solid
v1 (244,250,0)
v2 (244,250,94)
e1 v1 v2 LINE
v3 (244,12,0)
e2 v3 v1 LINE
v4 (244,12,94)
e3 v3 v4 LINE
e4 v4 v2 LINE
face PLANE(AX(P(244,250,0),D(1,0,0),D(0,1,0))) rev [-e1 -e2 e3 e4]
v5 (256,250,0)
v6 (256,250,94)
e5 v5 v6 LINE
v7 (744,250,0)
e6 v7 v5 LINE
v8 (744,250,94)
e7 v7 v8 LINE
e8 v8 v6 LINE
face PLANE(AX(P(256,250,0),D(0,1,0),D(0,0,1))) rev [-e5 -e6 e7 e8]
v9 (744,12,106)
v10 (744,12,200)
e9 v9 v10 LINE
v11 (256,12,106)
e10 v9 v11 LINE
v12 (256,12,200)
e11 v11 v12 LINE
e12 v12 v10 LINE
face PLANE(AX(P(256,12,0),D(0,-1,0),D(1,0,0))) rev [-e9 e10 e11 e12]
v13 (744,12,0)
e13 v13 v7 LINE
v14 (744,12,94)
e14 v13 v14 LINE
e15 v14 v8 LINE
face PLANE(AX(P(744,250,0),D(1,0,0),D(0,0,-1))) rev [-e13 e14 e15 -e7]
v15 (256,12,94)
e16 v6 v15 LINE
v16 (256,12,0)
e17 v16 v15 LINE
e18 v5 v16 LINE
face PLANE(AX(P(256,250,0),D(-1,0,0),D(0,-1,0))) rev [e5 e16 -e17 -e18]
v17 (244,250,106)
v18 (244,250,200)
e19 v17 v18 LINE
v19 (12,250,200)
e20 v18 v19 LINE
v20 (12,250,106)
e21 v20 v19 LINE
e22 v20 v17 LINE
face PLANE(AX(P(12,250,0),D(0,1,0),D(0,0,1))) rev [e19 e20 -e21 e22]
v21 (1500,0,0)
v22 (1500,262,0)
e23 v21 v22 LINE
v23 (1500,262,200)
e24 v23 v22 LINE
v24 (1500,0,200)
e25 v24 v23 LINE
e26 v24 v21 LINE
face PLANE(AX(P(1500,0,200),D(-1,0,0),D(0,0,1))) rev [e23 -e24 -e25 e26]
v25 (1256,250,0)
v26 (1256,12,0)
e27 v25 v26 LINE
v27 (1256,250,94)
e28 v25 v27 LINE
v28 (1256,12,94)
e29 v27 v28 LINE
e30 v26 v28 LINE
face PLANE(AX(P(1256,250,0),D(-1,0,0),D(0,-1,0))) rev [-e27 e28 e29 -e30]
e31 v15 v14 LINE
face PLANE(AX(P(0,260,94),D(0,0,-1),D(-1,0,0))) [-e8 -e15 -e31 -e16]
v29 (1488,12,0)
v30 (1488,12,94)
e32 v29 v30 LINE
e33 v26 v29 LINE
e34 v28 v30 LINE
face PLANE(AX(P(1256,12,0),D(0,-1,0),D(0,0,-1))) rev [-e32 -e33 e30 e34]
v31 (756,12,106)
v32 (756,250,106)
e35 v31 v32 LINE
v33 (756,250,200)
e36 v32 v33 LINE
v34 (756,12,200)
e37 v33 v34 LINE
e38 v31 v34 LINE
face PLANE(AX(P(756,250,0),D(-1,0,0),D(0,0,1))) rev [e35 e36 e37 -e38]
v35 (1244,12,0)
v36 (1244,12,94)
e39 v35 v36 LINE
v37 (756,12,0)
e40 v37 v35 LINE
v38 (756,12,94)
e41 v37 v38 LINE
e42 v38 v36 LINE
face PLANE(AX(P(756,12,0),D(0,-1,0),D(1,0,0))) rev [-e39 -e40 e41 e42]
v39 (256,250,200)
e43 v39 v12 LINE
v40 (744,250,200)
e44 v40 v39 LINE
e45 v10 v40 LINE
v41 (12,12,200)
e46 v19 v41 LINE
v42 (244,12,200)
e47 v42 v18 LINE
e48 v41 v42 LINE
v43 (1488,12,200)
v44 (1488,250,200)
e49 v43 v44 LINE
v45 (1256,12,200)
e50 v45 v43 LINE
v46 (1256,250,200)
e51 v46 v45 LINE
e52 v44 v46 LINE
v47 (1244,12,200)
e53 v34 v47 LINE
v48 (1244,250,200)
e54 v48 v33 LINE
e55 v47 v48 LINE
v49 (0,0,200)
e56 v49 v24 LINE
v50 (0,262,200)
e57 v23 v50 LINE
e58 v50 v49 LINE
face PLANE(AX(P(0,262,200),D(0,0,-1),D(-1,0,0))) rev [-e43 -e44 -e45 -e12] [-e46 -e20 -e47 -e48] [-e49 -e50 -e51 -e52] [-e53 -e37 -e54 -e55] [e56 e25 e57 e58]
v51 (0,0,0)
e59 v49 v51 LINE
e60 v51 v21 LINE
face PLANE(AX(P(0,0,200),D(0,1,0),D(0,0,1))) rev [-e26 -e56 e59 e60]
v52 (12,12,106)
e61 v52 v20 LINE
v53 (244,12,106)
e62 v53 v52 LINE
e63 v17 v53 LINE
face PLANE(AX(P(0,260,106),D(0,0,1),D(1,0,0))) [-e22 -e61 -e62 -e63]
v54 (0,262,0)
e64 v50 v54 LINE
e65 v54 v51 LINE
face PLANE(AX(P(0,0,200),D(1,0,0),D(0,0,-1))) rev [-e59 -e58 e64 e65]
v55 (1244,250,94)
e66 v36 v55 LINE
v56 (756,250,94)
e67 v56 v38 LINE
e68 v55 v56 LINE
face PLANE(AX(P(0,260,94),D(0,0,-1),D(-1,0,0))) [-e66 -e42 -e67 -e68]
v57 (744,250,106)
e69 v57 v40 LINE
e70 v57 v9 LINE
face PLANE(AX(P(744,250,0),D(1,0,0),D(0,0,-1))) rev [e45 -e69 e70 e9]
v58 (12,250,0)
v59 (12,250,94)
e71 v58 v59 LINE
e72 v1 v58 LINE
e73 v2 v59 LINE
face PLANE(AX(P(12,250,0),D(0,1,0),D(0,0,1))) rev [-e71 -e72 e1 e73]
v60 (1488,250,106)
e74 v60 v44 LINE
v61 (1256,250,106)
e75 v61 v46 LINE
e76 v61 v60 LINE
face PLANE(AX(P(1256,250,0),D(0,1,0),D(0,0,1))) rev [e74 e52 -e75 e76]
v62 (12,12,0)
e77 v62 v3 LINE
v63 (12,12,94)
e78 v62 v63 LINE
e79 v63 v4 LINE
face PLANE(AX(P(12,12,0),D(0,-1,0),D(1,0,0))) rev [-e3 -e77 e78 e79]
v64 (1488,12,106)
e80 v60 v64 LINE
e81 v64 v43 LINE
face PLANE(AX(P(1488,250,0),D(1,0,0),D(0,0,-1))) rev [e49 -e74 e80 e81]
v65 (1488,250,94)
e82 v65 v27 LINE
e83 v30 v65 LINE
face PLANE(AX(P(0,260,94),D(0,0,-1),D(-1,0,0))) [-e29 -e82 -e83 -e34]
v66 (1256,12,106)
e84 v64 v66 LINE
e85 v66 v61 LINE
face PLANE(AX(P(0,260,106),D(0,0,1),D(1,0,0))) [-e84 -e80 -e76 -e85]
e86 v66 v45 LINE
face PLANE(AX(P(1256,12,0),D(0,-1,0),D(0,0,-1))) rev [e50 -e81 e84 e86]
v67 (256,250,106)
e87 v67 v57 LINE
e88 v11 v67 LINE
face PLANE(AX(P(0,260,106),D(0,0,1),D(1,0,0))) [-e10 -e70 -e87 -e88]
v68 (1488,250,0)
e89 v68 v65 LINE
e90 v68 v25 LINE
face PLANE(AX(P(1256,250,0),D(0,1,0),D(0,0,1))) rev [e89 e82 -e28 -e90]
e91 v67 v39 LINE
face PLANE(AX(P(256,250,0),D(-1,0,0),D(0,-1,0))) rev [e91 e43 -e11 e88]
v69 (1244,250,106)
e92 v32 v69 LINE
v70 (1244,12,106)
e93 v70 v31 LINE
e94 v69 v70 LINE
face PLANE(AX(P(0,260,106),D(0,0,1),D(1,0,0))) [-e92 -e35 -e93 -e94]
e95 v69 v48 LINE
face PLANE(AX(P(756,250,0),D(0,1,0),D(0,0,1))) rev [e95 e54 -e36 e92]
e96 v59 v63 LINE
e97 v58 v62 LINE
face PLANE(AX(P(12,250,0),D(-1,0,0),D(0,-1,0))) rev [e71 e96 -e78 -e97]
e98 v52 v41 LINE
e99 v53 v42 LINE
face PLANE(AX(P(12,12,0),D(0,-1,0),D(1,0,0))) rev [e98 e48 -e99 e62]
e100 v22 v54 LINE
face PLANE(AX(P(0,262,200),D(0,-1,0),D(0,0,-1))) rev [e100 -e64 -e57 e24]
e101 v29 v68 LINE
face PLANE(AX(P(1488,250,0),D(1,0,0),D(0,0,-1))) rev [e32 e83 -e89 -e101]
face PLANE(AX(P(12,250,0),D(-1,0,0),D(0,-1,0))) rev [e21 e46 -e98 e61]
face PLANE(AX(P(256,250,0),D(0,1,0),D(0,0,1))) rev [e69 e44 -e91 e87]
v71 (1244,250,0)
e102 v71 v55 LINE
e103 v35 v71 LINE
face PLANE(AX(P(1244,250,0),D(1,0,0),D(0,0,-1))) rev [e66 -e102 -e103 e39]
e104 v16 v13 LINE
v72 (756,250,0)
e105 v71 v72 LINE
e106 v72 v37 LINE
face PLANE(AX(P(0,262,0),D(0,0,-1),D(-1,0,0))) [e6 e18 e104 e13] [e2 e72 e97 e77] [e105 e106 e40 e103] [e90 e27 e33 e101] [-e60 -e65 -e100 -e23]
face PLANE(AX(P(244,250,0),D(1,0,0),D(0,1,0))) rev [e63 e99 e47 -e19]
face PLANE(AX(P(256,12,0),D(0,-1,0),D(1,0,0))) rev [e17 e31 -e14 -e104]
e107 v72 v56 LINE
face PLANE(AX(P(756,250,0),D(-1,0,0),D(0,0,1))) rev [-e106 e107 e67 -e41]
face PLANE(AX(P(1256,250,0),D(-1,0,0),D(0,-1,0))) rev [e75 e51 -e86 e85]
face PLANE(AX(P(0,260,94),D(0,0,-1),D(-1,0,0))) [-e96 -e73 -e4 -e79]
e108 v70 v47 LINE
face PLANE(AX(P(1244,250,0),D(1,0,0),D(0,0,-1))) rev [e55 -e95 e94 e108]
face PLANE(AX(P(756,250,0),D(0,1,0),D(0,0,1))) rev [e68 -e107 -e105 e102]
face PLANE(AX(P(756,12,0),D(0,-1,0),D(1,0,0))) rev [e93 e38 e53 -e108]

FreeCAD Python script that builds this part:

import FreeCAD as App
import Part
import Sketcher
from FreeCAD import Vector


def add_polygon(sketch, points):
    """Adds a closed chain of lines whose ends are joined by coincident constraints."""
    first, n = sketch.GeometryCount, len(points)
    for a, b in zip(points, points[1:] + points[:1]):
        sketch.addGeometry(Part.LineSegment(App.Vector(*a, 0), App.Vector(*b, 0)), False)
    for i in range(n):
        sketch.addConstraint(Sketcher.Constraint("Coincident", first + i, 2, first + (i + 1) % n, 1))

doc = App.newDocument("Part")
body = doc.addObject("PartDesign::Body", "Body")

# Sketch on XY plane
sketch1 = body.newObject("Sketcher::SketchObject", "Sketch")
sketch1.AttachmentSupport = (doc.getObject("XY_Plane"), [""])
sketch1.MapMode = "FlatFace"
add_polygon(sketch1, [(0, 262), (0, 0), (1500, 0), (1500, 262)])  # lines 0-3
sketch1.addConstraint([
    Sketcher.Constraint("Vertical", 0),
    Sketcher.Constraint("Horizontal", 1),
    Sketcher.Constraint("Vertical", 2),
    Sketcher.Constraint("Horizontal", 3),
    Sketcher.Constraint("Coincident", 0, 2, -1, 1),
    Sketcher.Constraint("DistanceX", 1, 1, 1, 2, 1500.0),
    Sketcher.Constraint("DistanceY", 0, 2, 0, 1, 262.0),
])
pad1 = body.newObject("PartDesign::Pad", "Pad")
pad1.Profile = sketch1
pad1.Length = 200

# Sketch on XY plane
sketch2 = body.newObject("Sketcher::SketchObject", "Sketch001")
sketch2.AttachmentSupport = (doc.getObject("XY_Plane"), [""])
sketch2.MapMode = "FlatFace"
sketch2.AttachmentOffset = App.Placement(Vector(0, 0, 200), App.Rotation())
add_polygon(sketch2, [(12, 250), (12, 12), (244, 12), (244, 250)])  # lines 0-3
add_polygon(sketch2, [(256, 250), (256, 12), (744, 12), (744, 250)])  # lines 4-7
add_polygon(sketch2, [(756, 250), (756, 12), (1244, 12), (1244, 250)])  # lines 8-11
add_polygon(sketch2, [(1256, 250), (1256, 12), (1488, 12), (1488, 250)])  # lines 12-15
sketch2.addConstraint([
    Sketcher.Constraint("Vertical", 0),
    Sketcher.Constraint("Horizontal", 1),
    Sketcher.Constraint("Vertical", 2),
    Sketcher.Constraint("Horizontal", 3),
    Sketcher.Constraint("Vertical", 4),
    Sketcher.Constraint("Horizontal", 5),
    Sketcher.Constraint("Vertical", 6),
    Sketcher.Constraint("Horizontal", 7),
    Sketcher.Constraint("Vertical", 8),
    Sketcher.Constraint("Horizontal", 9),
    Sketcher.Constraint("Vertical", 10),
    Sketcher.Constraint("Horizontal", 11),
    Sketcher.Constraint("Vertical", 12),
    Sketcher.Constraint("Horizontal", 13),
    Sketcher.Constraint("Vertical", 14),
    Sketcher.Constraint("Horizontal", 15),
    Sketcher.Constraint("Horizontal", 1, 2, 4, 2),
    Sketcher.Constraint("Horizontal", 3, 2, 6, 2),
    Sketcher.Constraint("Horizontal", 5, 2, 8, 2),
    Sketcher.Constraint("Horizontal", 7, 2, 10, 2),
    Sketcher.Constraint("Horizontal", 9, 2, 12, 2),
    Sketcher.Constraint("Horizontal", 11, 2, 14, 2),
    Sketcher.Constraint("Equal", 7, 9),
    Sketcher.Constraint("Equal", 3, 13),
    Sketcher.Constraint("DistanceX", 1, 1, 1, 2, 232.0),
    Sketcher.Constraint("DistanceX", 5, 1, 5, 2, 488.0),
    Sketcher.Constraint("DistanceY", 0, 2, 0, 1, 238.0),
    Sketcher.Constraint("DistanceX", -1, 1, 0, 2, 12.0),
    Sketcher.Constraint("DistanceY", -1, 1, 0, 2, 12.0),
    Sketcher.Constraint("DistanceX", -1, 1, 4, 2, 256.0),
    Sketcher.Constraint("DistanceX", -1, 1, 8, 2, 756.0),
    Sketcher.Constraint("DistanceX", -1, 1, 12, 2, 1256.0),
])
pocket1 = body.newObject("PartDesign::Pocket", "Pocket")
pocket1.Profile = sketch2
pocket1.Type = "ThroughAll"

# Sketch on XZ plane
sketch3 = body.newObject("Sketcher::SketchObject", "Sketch002")
sketch3.AttachmentSupport = (doc.getObject("XZ_Plane"), [""])
sketch3.MapMode = "FlatFace"
add_polygon(sketch3, [(0, 106), (0, 94), (1500, 94), (1500, 106)])  # lines 0-3
sketch3.addConstraint([
    Sketcher.Constraint("Vertical", 0),
    Sketcher.Constraint("Horizontal", 1),
    Sketcher.Constraint("Vertical", 2),
    Sketcher.Constraint("Horizontal", 3),
    Sketcher.Constraint("PointOnObject", 0, 2, -2),
    Sketcher.Constraint("DistanceX", 1, 1, 1, 2, 1500.0),
    Sketcher.Constraint("DistanceY", 0, 2, 0, 1, 12.0),
    Sketcher.Constraint("DistanceY", -1, 1, 0, 2, 94.0),
])
pad2 = body.newObject("PartDesign::Pad", "Pad001")
pad2.Profile = sketch3
pad2.Length = 260
pad2.Reversed = True

doc.recompute()
